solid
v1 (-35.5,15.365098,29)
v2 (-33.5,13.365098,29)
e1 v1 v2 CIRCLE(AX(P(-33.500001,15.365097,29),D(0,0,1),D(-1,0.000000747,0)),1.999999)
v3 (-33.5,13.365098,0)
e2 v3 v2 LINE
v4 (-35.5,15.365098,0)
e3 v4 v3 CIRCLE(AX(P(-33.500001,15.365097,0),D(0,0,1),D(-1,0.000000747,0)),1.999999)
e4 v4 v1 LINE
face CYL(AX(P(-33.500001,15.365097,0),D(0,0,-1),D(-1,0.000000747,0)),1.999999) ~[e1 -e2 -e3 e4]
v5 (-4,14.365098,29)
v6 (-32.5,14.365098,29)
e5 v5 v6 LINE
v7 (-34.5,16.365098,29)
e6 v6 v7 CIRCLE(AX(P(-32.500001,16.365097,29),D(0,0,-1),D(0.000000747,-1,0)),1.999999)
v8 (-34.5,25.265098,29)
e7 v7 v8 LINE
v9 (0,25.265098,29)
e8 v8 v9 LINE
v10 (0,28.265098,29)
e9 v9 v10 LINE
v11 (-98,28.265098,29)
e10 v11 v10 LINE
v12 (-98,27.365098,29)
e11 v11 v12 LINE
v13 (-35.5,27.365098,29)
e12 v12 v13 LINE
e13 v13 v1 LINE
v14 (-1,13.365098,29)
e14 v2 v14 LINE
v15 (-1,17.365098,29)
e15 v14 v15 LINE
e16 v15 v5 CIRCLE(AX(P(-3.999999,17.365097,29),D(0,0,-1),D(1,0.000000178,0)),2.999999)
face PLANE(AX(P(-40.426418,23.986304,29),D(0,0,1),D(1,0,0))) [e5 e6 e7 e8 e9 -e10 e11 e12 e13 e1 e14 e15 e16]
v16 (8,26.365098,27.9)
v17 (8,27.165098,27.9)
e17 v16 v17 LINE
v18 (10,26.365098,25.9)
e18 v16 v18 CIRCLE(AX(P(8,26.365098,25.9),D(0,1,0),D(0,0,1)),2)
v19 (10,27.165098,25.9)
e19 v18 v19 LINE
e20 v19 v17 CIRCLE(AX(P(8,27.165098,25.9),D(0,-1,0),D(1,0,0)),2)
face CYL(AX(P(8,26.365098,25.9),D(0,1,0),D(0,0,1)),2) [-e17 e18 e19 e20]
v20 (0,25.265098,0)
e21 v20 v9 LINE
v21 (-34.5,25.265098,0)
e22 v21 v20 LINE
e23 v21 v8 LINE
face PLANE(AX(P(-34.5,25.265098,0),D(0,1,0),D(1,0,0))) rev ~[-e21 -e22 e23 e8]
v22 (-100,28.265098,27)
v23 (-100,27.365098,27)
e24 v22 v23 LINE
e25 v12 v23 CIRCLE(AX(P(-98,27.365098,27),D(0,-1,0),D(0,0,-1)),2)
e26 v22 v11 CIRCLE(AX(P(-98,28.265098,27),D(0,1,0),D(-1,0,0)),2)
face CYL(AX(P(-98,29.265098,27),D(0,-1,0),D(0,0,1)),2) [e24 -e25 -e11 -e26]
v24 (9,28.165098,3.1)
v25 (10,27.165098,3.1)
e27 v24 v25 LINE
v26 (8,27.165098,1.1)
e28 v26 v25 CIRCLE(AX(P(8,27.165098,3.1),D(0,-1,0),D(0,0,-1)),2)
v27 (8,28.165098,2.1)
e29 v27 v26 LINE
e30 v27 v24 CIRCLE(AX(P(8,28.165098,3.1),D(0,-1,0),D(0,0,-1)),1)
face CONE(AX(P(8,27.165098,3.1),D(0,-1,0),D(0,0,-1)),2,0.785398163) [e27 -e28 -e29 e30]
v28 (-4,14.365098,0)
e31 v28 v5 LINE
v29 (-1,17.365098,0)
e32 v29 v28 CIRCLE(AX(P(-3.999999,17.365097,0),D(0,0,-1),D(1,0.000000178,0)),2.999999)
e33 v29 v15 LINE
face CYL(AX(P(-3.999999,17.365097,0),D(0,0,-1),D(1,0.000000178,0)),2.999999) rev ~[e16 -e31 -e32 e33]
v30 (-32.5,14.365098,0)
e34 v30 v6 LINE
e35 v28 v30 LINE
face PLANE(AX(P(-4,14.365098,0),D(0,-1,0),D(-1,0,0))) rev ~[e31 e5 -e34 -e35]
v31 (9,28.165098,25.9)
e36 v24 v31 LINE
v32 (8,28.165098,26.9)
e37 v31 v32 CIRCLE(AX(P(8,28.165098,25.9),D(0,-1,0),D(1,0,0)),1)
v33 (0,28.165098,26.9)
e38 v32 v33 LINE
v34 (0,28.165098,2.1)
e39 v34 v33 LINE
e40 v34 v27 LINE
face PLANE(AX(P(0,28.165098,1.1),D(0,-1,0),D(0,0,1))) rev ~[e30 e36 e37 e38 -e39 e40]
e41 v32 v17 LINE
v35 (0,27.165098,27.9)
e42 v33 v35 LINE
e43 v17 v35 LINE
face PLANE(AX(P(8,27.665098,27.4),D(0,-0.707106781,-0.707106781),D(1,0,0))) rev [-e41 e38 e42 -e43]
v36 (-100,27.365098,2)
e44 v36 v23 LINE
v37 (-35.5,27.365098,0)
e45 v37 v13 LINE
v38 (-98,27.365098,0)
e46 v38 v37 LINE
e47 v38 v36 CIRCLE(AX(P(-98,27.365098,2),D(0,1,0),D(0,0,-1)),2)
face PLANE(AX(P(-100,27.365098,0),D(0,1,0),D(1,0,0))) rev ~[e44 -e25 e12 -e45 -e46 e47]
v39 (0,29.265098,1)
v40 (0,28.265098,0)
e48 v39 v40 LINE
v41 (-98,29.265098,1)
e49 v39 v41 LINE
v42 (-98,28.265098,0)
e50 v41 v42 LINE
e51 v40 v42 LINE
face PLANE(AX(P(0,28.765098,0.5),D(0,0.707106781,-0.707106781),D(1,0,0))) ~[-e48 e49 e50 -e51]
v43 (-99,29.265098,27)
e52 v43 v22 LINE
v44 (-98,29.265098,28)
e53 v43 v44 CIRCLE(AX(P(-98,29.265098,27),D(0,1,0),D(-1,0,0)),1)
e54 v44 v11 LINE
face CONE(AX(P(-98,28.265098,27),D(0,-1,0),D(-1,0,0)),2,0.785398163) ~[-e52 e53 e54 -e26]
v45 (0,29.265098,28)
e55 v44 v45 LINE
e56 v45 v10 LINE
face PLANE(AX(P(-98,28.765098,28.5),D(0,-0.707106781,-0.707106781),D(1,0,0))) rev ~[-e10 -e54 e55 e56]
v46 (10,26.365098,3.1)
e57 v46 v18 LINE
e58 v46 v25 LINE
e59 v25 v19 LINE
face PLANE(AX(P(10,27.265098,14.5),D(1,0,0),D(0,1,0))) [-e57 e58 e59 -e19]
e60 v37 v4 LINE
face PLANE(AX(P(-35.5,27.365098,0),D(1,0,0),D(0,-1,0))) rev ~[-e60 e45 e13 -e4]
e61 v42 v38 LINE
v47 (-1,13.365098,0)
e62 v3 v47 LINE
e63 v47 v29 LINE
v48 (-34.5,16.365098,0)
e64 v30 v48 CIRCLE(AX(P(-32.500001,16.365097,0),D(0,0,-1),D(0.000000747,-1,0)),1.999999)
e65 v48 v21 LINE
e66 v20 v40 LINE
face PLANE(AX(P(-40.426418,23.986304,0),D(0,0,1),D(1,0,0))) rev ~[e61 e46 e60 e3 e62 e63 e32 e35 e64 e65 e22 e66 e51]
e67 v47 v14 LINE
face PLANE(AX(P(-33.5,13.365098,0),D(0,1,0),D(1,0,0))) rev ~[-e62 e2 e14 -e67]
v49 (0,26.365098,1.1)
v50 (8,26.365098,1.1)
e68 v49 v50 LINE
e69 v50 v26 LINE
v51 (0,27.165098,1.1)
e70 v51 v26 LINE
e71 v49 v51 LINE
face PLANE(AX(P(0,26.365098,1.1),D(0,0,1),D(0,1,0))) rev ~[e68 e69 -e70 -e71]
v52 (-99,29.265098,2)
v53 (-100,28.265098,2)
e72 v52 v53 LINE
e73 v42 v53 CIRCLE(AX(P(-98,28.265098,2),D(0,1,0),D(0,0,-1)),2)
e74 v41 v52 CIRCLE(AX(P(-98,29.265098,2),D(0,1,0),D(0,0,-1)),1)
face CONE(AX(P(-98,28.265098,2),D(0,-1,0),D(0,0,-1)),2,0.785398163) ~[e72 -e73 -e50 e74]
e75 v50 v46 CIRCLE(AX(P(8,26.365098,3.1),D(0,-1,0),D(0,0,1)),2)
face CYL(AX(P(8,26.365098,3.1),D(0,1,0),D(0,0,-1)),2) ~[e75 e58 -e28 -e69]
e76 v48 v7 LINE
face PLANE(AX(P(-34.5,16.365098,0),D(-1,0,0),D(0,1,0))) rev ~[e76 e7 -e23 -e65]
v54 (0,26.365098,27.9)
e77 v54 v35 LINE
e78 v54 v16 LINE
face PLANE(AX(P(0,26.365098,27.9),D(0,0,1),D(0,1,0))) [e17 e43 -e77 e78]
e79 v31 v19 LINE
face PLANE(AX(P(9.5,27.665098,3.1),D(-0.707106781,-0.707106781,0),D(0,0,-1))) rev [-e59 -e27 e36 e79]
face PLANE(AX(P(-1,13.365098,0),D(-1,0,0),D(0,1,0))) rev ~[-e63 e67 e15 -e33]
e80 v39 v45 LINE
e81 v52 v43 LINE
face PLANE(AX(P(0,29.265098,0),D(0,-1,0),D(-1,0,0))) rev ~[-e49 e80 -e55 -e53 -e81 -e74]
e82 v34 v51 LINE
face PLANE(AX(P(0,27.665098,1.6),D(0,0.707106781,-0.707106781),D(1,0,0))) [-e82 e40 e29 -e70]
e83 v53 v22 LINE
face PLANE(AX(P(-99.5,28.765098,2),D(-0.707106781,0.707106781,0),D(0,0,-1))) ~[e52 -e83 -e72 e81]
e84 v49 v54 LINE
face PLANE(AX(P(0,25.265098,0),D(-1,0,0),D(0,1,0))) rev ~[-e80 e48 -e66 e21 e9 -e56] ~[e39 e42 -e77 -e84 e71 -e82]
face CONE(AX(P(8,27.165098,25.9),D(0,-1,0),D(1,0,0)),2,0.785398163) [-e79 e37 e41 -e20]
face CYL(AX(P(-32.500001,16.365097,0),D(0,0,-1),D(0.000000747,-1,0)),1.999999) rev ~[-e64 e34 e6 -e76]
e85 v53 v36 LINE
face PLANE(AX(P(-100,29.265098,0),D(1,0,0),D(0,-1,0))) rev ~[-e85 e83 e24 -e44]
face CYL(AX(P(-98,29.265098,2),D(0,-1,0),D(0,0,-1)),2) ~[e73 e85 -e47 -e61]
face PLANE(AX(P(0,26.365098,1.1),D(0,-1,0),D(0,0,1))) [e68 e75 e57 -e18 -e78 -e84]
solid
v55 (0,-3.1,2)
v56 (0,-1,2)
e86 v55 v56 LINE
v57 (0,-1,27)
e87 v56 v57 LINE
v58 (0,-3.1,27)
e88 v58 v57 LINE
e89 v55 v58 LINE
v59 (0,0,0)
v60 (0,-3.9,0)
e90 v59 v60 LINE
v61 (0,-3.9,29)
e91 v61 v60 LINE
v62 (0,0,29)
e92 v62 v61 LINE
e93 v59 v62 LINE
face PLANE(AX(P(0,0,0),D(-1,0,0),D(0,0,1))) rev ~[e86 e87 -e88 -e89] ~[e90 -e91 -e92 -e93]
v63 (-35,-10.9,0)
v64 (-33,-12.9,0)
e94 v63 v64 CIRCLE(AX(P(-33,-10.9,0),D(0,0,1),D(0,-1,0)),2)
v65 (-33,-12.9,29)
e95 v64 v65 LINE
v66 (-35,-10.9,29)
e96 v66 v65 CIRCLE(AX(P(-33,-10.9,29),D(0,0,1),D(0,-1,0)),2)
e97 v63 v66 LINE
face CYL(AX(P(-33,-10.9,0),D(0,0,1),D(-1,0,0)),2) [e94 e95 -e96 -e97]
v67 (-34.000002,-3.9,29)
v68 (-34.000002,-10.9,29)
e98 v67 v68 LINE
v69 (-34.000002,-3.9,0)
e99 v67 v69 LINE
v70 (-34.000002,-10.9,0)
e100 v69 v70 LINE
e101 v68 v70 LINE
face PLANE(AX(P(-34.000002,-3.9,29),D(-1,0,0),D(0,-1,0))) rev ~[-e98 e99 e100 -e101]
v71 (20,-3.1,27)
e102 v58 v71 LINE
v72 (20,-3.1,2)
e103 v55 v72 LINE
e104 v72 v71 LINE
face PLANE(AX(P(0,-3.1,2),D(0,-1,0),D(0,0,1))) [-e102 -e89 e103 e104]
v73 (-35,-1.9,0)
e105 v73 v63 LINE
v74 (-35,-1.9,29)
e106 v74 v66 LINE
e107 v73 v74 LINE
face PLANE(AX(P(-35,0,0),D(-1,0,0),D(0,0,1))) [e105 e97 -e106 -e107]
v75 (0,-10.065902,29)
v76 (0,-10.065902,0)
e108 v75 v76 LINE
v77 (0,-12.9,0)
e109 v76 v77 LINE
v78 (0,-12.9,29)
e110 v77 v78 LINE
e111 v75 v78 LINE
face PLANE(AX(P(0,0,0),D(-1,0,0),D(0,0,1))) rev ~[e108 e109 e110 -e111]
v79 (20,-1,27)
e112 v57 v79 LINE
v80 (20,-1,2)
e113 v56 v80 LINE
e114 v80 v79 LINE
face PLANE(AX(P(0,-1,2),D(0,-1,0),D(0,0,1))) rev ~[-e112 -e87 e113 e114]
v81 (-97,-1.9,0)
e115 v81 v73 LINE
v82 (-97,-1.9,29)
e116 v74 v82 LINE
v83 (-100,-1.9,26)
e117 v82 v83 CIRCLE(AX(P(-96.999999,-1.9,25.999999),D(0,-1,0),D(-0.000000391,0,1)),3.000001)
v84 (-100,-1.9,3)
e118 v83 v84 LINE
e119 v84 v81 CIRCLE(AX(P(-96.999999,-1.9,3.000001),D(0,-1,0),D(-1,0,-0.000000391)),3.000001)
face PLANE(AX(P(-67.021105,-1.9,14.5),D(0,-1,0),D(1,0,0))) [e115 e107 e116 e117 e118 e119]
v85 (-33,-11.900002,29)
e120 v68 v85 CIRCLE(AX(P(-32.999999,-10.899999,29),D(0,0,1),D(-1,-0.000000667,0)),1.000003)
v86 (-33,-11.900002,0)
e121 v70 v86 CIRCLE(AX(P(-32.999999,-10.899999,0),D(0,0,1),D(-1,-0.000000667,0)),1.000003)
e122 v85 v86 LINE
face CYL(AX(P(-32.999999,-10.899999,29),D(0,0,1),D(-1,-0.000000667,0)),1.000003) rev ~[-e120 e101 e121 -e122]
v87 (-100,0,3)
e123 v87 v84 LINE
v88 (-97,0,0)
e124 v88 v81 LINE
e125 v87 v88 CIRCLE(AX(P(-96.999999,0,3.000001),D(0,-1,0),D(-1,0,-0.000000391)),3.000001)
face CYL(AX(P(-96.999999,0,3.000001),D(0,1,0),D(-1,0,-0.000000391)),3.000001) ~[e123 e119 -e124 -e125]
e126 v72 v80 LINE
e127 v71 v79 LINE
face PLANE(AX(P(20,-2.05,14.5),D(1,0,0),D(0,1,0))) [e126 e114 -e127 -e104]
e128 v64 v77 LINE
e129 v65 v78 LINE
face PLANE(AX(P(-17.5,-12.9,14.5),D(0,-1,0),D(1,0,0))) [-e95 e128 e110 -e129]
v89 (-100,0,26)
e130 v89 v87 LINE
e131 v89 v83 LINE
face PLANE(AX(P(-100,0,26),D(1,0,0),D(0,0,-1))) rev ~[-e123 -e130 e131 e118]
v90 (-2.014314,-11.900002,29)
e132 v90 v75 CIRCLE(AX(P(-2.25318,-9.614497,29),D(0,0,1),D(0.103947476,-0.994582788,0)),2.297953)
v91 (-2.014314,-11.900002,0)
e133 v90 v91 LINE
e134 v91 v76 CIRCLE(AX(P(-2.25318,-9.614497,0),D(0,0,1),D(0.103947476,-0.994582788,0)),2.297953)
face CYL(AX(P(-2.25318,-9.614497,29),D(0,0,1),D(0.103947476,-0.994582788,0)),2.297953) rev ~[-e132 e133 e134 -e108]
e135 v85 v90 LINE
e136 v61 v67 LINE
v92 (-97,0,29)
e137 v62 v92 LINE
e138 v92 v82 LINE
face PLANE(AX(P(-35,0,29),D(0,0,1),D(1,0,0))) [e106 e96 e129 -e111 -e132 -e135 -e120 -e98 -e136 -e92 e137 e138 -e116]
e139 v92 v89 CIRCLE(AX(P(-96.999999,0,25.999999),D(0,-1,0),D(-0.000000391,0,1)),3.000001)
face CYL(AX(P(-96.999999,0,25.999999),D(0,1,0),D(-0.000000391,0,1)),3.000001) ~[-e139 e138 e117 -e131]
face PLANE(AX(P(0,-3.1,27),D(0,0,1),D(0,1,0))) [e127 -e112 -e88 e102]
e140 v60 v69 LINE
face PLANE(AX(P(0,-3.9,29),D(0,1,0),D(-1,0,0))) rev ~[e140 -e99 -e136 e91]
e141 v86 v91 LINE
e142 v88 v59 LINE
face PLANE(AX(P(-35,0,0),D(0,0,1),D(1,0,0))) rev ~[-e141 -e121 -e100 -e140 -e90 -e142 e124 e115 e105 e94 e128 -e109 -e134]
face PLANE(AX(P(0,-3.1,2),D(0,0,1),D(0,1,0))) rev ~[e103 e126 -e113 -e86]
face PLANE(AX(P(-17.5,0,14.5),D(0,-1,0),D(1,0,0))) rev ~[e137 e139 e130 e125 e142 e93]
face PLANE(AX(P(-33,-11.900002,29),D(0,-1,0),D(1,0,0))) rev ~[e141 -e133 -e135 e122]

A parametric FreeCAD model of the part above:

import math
import FreeCAD as App
import Part
import Sketcher
from FreeCAD import Vector


def edges_at(feature, points):
    """Names of the edges that pass closest to the given points."""
    edges = feature.Shape.Edges
    near = lambda p: min(range(len(edges)), key=lambda i: edges[i].distToShape(Part.Vertex(*p))[0])
    return sorted({f"Edge{near(p) + 1}" for p in points})


def add_polygon(sketch, points):
    """Adds a closed chain of lines whose ends are joined by coincident constraints."""
    first, n = sketch.GeometryCount, len(points)
    for a, b in zip(points, points[1:] + points[:1]):
        sketch.addGeometry(Part.LineSegment(App.Vector(*a, 0), App.Vector(*b, 0)), False)
    for i in range(n):
        sketch.addConstraint(Sketcher.Constraint("Coincident", first + i, 2, first + (i + 1) % n, 1))

doc = App.newDocument("Part")
body = doc.addObject("PartDesign::Body", "Body")

# Sketch on XZ plane
sketch1 = body.newObject("Sketcher::SketchObject", "Sketch")
sketch1.AttachmentSupport = (doc.getObject("XZ_Plane"), [""])
sketch1.MapMode = "FlatFace"
sketch1.addGeometry(Part.LineSegment(Vector(-97, 0, 0), Vector(-35, 0, 0)), False)
sketch1.addGeometry(Part.LineSegment(Vector(-35, 0, 0), Vector(-35, 29, 0)), False)
sketch1.addGeometry(Part.LineSegment(Vector(-35, 29, 0), Vector(-97, 29, 0)), False)
sketch1.addGeometry(Part.ArcOfCircle(Part.Circle(Vector(-97, 26, 0), Vector(0, 0, 1), 3), math.radians(90), math.radians(180)), False)
sketch1.addGeometry(Part.LineSegment(Vector(-100, 26, 0), Vector(-100, 3, 0)), False)
sketch1.addGeometry(Part.ArcOfCircle(Part.Circle(Vector(-97, 3, 0), Vector(0, 0, 1), 3), math.radians(-180), math.radians(-90)), False)
sketch1.addConstraint(Sketcher.Constraint("Coincident", 0, 2, 1, 1))
sketch1.addConstraint(Sketcher.Constraint("Coincident", 1, 2, 2, 1))
sketch1.addConstraint(Sketcher.Constraint("Tangent", 2, 2, 3, 1))
sketch1.addConstraint(Sketcher.Constraint("Tangent", 3, 2, 4, 1))
sketch1.addConstraint(Sketcher.Constraint("Tangent", 4, 2, 5, 1))
sketch1.addConstraint(Sketcher.Constraint("Tangent", 5, 2, 0, 1))
sketch1.addConstraint(Sketcher.Constraint("Horizontal", 0))
sketch1.addConstraint(Sketcher.Constraint("Vertical", 1))
sketch1.addConstraint(Sketcher.Constraint("Horizontal", 2))
sketch1.addConstraint(Sketcher.Constraint("Vertical", 4))
sketch1.addConstraint(Sketcher.Constraint("Equal", 3, 5))
sketch1.addConstraint(Sketcher.Constraint("PointOnObject", 0, 2, -1))
sketch1.addConstraint(Sketcher.Constraint("Radius", 3, 3.000001))
sketch1.addConstraint(Sketcher.Constraint("DistanceX", 0, 1, 0, 2, 62.0))
sketch1.addConstraint(Sketcher.Constraint("DistanceY", 1, 1, 1, 2, 29.0))
sketch1.addConstraint(Sketcher.Constraint("DistanceX", 3, 3, -1, 1, 96.999999))
pad1 = body.newObject("PartDesign::Pad", "Pad")
pad1.Profile = sketch1
pad1.Length = 1.9

# Sketch on XZ plane
sketch2 = body.newObject("Sketcher::SketchObject", "Sketch001")
sketch2.AttachmentSupport = (doc.getObject("XZ_Plane"), [""])
sketch2.MapMode = "FlatFace"
add_polygon(sketch2, [(-35, 29), (-35, 0), (0, 0), (0, 29)])  # lines 0-3
sketch2.addConstraint(Sketcher.Constraint("Vertical", 0))
sketch2.addConstraint(Sketcher.Constraint("Horizontal", 1))
sketch2.addConstraint(Sketcher.Constraint("Vertical", 2))
sketch2.addConstraint(Sketcher.Constraint("Horizontal", 3))
sketch2.addConstraint(Sketcher.Constraint("Coincident", 1, 2, -1, 1))
sketch2.addConstraint(Sketcher.Constraint("DistanceX", 1, 1, 1, 2, 35.0))
sketch2.addConstraint(Sketcher.Constraint("DistanceY", 0, 2, 0, 1, 29.0))
pad2 = body.newObject("PartDesign::Pad", "Pad001")
pad2.Profile = sketch2
pad2.Length = 12.9

# Sketch on YZ plane
sketch3 = body.newObject("Sketcher::SketchObject", "Sketch002")
sketch3.AttachmentSupport = (doc.getObject("YZ_Plane"), [""])
sketch3.MapMode = "FlatFace"
add_polygon(sketch3, [(-3.1, 27), (-3.1, 2), (-1, 2), (-1, 27)])  # lines 0-3
sketch3.addConstraint(Sketcher.Constraint("Vertical", 0))
sketch3.addConstraint(Sketcher.Constraint("Horizontal", 1))
sketch3.addConstraint(Sketcher.Constraint("Vertical", 2))
sketch3.addConstraint(Sketcher.Constraint("Horizontal", 3))
sketch3.addConstraint(Sketcher.Constraint("DistanceY", 0, 2, 0, 1, 25.0))
sketch3.addConstraint(Sketcher.Constraint("DistanceX", 1, 1, 1, 2, 2.1))
sketch3.addConstraint(Sketcher.Constraint("DistanceY", -1, 1, 0, 2, 2.0))
sketch3.addConstraint(Sketcher.Constraint("DistanceX", 1, 2, -1, 1, 1.0))
pad3 = body.newObject("PartDesign::Pad", "Pad002")
pad3.Profile = sketch3
pad3.Length = 20
doc.recompute()

fillet = body.newObject("PartDesign::Fillet", "Fillet")
fillet.Base = (pad3, edges_at(pad3, [(-35, -12.9, 14.5)]))
fillet.Radius = 2

# Sketch on XY plane
sketch4 = body.newObject("Sketcher::SketchObject", "Sketch003")
sketch4.AttachmentSupport = (doc.getObject("XY_Plane"), [""])
sketch4.MapMode = "FlatFace"
sketch4.AttachmentOffset = App.Placement(Vector(0, 0, 29), App.Rotation())
sketch4.addGeometry(Part.LineSegment(Vector(-34, -3.9, 0), Vector(-34, -10.9, 0)), False)
sketch4.addGeometry(Part.ArcOfCircle(Part.Circle(Vector(-33, -10.9, 0), Vector(0, 0, 1), 1), math.radians(-180), math.radians(-90)), False)
sketch4.addGeometry(Part.LineSegment(Vector(-33, -11.9, 0), Vector(-2, -11.9, 0)), False)
sketch4.addGeometry(Part.ArcOfCircle(Part.Circle(Vector(-2.3, -9.6, 0), Vector(0, 0, 1), 2.3), math.radians(-84), math.radians(-11)), False)
sketch4.addGeometry(Part.LineSegment(Vector(0, -10.1, 0), Vector(0, -3.9, 0)), False)
sketch4.addGeometry(Part.LineSegment(Vector(0, -3.9, 0), Vector(-34, -3.9, 0)), False)
sketch4.addConstraint(Sketcher.Constraint("Tangent", 0, 2, 1, 1))
sketch4.addConstraint(Sketcher.Constraint("Tangent", 1, 2, 2, 1))
sketch4.addConstraint(Sketcher.Constraint("Coincident", 2, 2, 3, 1))
sketch4.addConstraint(Sketcher.Constraint("Coincident", 3, 2, 4, 1))
sketch4.addConstraint(Sketcher.Constraint("Coincident", 4, 2, 5, 1))
sketch4.addConstraint(Sketcher.Constraint("Coincident", 5, 2, 0, 1))
sketch4.addConstraint(Sketcher.Constraint("Vertical", 0))
sketch4.addConstraint(Sketcher.Constraint("Horizontal", 2))
sketch4.addConstraint(Sketcher.Constraint("Vertical", 4))
sketch4.addConstraint(Sketcher.Constraint("Horizontal", 5))
sketch4.addConstraint(Sketcher.Constraint("PointOnObject", 3, 2, -2))
sketch4.addConstraint(Sketcher.Constraint("DistanceY", 0, 2, 0, 1, 7.0))
sketch4.addConstraint(Sketcher.Constraint("DistanceX", 1, 3, -1, 1, 32.999999))
sketch4.addConstraint(Sketcher.Constraint("DistanceY", 1, 2, 0, 2, 1.000002))
sketch4.addConstraint(Sketcher.Constraint("DistanceY", 1, 3, -1, 1, 10.899999))
sketch4.addConstraint(Sketcher.Constraint("DistanceY", 4, 1, 4, 2, 6.165902))
sketch4.addConstraint(Sketcher.Constraint("Radius", 3, 2.297953))
sketch4.addConstraint(Sketcher.Constraint("DistanceY", 1, 3, 3, 3, 1.285502))
pocket1 = body.newObject("PartDesign::Pocket", "Pocket")
pocket1.Profile = sketch4
pocket1.Length = 29
body2 = doc.addObject("PartDesign::Body", "Body001")

# Sketch on XY plane
sketch5 = body2.newObject("Sketcher::SketchObject", "Sketch004")
sketch5.AttachmentSupport = (doc.getObject("XY_Plane001"), [""])
sketch5.MapMode = "FlatFace"
sketch5.addGeometry(Part.LineSegment(Vector(0, 25.3, 0), Vector(0, 29.3, 0)), False)
sketch5.addGeometry(Part.LineSegment(Vector(0, 29.3, 0), Vector(-100, 29.3, 0)), False)
sketch5.addGeometry(Part.LineSegment(Vector(-100, 29.3, 0), Vector(-100, 27.4, 0)), False)
sketch5.addGeometry(Part.LineSegment(Vector(-100, 27.4, 0), Vector(-35.5, 27.4, 0)), False)
sketch5.addGeometry(Part.LineSegment(Vector(-35.5, 27.4, 0), Vector(-35.5, 15.4, 0)), False)
sketch5.addGeometry(Part.ArcOfCircle(Part.Circle(Vector(-33.5, 15.4, 0), Vector(0, 0, 1), 2), math.radians(180), math.radians(270)), False)
sketch5.addGeometry(Part.LineSegment(Vector(-33.5, 13.4, 0), Vector(-1, 13.4, 0)), False)
sketch5.addGeometry(Part.LineSegment(Vector(-1, 13.4, 0), Vector(-1, 17.4, 0)), False)
sketch5.addGeometry(Part.ArcOfCircle(Part.Circle(Vector(-4, 17.4, 0), Vector(0, 0, 1), 3), math.radians(-90), math.radians(0)), False)
sketch5.addGeometry(Part.LineSegment(Vector(-4, 14.4, 0), Vector(-32.5, 14.4, 0)), False)
sketch5.addGeometry(Part.ArcOfCircle(Part.Circle(Vector(-32.5, 16.4, 0), Vector(0, 0, 1), 2), math.radians(180), math.radians(270)), False)
sketch5.addGeometry(Part.LineSegment(Vector(-34.5, 16.4, 0), Vector(-34.5, 25.3, 0)), False)
sketch5.addGeometry(Part.LineSegment(Vector(-34.5, 25.3, 0), Vector(0, 25.3, 0)), False)
sketch5.addConstraint(Sketcher.Constraint("Coincident", 0, 2, 1, 1))
sketch5.addConstraint(Sketcher.Constraint("Coincident", 1, 2, 2, 1))
sketch5.addConstraint(Sketcher.Constraint("Coincident", 2, 2, 3, 1))
sketch5.addConstraint(Sketcher.Constraint("Coincident", 3, 2, 4, 1))
sketch5.addConstraint(Sketcher.Constraint("Tangent", 4, 2, 5, 1))
sketch5.addConstraint(Sketcher.Constraint("Tangent", 5, 2, 6, 1))
sketch5.addConstraint(Sketcher.Constraint("Coincident", 6, 2, 7, 1))
sketch5.addConstraint(Sketcher.Constraint("Tangent", 7, 2, 8, 2))
sketch5.addConstraint(Sketcher.Constraint("Tangent", 8, 1, 9, 1))
sketch5.addConstraint(Sketcher.Constraint("Tangent", 9, 2, 10, 2))
sketch5.addConstraint(Sketcher.Constraint("Tangent", 10, 1, 11, 1))
sketch5.addConstraint(Sketcher.Constraint("Coincident", 11, 2, 12, 1))
sketch5.addConstraint(Sketcher.Constraint("Coincident", 12, 2, 0, 1))
sketch5.addConstraint(Sketcher.Constraint("Vertical", 0))
sketch5.addConstraint(Sketcher.Constraint("Horizontal", 1))
sketch5.addConstraint(Sketcher.Constraint("Vertical", 2))
sketch5.addConstraint(Sketcher.Constraint("Horizontal", 3))
sketch5.addConstraint(Sketcher.Constraint("Vertical", 4))
sketch5.addConstraint(Sketcher.Constraint("Horizontal", 6))
sketch5.addConstraint(Sketcher.Constraint("Vertical", 7))
sketch5.addConstraint(Sketcher.Constraint("Horizontal", 9))
sketch5.addConstraint(Sketcher.Constraint("Vertical", 11))
sketch5.addConstraint(Sketcher.Constraint("Horizontal", 12))
sketch5.addConstraint(Sketcher.Constraint("Equal", 5, 10))
sketch5.addConstraint(Sketcher.Constraint("PointOnObject", 0, 2, -2))
sketch5.addConstraint(Sketcher.Constraint("Equal", 0, 7))
sketch5.addConstraint(Sketcher.Constraint("Radius", 5, 1.999999))
sketch5.addConstraint(Sketcher.Constraint("Radius", 8, 2.999999))
sketch5.addConstraint(Sketcher.Constraint("DistanceX", 1, 2, 1, 1, 100.0))
sketch5.addConstraint(Sketcher.Constraint("DistanceY", 0, 1, 0, 2, 4.0))
sketch5.addConstraint(Sketcher.Constraint("DistanceY", 4, 2, 4, 1, 12.0))
sketch5.addConstraint(Sketcher.Constraint("DistanceX", 3, 1, 3, 2, 64.5))
sketch5.addConstraint(Sketcher.Constraint("DistanceX", 6, 1, 6, 2, 32.5))
sketch5.addConstraint(Sketcher.Constraint("DistanceX", 9, 2, 9, 1, 28.5))
sketch5.addConstraint(Sketcher.Constraint("DistanceY", 2, 2, 2, 1, 1.9))
sketch5.addConstraint(Sketcher.Constraint("DistanceY", -1, 1, 5, 2, 13.365098))
pad4 = body2.newObject("PartDesign::Pad", "Pad003")
pad4.Profile = sketch5
pad4.Length = 29

# Sketch on YZ plane
sketch6 = body2.newObject("Sketcher::SketchObject", "Sketch005")
sketch6.AttachmentSupport = (doc.getObject("YZ_Plane001"), [""])
sketch6.MapMode = "FlatFace"
add_polygon(sketch6, [(26.4, 27.9), (26.4, 1.1), (28.2, 1.1), (28.2, 27.9)])  # lines 0-3
sketch6.addConstraint(Sketcher.Constraint("Vertical", 0))
sketch6.addConstraint(Sketcher.Constraint("Horizontal", 1))
sketch6.addConstraint(Sketcher.Constraint("Vertical", 2))
sketch6.addConstraint(Sketcher.Constraint("Horizontal", 3))
sketch6.addConstraint(Sketcher.Constraint("DistanceX", 1, 1, 1, 2, 1.8))
sketch6.addConstraint(Sketcher.Constraint("DistanceY", 0, 2, 0, 1, 26.8))
sketch6.addConstraint(Sketcher.Constraint("DistanceY", -1, 1, 0, 2, 1.1))
sketch6.addConstraint(Sketcher.Constraint("DistanceX", -1, 1, 1, 2, 28.165098))
pad5 = body2.newObject("PartDesign::Pad", "Pad004")
pad5.Profile = sketch6
pad5.Length = 10
doc.recompute()

fillet2 = body2.newObject("PartDesign::Fillet", "Fillet001")
fillet2.Base = (pad5, edges_at(pad5, [
    (10, 27.265, 27.9),
    (10, 27.265, 1.1),
    (-100, 28.315, 29),
    (-100, 28.315, 0),
]))
fillet2.Radius = 2
doc.recompute()

chamfer = body2.newObject("PartDesign::Chamfer", "Chamfer")
chamfer.Base = (fillet2, edges_at(fillet2, [(10, 28.165, 14.5)]))
chamfer.Size = 1
doc.recompute()

chamfer2 = body2.newObject("PartDesign::Chamfer", "Chamfer001")
chamfer2.Base = (chamfer, edges_at(chamfer, [(-100, 29.265, 14.5)]))
chamfer2.Size = 1

doc.recompute()
